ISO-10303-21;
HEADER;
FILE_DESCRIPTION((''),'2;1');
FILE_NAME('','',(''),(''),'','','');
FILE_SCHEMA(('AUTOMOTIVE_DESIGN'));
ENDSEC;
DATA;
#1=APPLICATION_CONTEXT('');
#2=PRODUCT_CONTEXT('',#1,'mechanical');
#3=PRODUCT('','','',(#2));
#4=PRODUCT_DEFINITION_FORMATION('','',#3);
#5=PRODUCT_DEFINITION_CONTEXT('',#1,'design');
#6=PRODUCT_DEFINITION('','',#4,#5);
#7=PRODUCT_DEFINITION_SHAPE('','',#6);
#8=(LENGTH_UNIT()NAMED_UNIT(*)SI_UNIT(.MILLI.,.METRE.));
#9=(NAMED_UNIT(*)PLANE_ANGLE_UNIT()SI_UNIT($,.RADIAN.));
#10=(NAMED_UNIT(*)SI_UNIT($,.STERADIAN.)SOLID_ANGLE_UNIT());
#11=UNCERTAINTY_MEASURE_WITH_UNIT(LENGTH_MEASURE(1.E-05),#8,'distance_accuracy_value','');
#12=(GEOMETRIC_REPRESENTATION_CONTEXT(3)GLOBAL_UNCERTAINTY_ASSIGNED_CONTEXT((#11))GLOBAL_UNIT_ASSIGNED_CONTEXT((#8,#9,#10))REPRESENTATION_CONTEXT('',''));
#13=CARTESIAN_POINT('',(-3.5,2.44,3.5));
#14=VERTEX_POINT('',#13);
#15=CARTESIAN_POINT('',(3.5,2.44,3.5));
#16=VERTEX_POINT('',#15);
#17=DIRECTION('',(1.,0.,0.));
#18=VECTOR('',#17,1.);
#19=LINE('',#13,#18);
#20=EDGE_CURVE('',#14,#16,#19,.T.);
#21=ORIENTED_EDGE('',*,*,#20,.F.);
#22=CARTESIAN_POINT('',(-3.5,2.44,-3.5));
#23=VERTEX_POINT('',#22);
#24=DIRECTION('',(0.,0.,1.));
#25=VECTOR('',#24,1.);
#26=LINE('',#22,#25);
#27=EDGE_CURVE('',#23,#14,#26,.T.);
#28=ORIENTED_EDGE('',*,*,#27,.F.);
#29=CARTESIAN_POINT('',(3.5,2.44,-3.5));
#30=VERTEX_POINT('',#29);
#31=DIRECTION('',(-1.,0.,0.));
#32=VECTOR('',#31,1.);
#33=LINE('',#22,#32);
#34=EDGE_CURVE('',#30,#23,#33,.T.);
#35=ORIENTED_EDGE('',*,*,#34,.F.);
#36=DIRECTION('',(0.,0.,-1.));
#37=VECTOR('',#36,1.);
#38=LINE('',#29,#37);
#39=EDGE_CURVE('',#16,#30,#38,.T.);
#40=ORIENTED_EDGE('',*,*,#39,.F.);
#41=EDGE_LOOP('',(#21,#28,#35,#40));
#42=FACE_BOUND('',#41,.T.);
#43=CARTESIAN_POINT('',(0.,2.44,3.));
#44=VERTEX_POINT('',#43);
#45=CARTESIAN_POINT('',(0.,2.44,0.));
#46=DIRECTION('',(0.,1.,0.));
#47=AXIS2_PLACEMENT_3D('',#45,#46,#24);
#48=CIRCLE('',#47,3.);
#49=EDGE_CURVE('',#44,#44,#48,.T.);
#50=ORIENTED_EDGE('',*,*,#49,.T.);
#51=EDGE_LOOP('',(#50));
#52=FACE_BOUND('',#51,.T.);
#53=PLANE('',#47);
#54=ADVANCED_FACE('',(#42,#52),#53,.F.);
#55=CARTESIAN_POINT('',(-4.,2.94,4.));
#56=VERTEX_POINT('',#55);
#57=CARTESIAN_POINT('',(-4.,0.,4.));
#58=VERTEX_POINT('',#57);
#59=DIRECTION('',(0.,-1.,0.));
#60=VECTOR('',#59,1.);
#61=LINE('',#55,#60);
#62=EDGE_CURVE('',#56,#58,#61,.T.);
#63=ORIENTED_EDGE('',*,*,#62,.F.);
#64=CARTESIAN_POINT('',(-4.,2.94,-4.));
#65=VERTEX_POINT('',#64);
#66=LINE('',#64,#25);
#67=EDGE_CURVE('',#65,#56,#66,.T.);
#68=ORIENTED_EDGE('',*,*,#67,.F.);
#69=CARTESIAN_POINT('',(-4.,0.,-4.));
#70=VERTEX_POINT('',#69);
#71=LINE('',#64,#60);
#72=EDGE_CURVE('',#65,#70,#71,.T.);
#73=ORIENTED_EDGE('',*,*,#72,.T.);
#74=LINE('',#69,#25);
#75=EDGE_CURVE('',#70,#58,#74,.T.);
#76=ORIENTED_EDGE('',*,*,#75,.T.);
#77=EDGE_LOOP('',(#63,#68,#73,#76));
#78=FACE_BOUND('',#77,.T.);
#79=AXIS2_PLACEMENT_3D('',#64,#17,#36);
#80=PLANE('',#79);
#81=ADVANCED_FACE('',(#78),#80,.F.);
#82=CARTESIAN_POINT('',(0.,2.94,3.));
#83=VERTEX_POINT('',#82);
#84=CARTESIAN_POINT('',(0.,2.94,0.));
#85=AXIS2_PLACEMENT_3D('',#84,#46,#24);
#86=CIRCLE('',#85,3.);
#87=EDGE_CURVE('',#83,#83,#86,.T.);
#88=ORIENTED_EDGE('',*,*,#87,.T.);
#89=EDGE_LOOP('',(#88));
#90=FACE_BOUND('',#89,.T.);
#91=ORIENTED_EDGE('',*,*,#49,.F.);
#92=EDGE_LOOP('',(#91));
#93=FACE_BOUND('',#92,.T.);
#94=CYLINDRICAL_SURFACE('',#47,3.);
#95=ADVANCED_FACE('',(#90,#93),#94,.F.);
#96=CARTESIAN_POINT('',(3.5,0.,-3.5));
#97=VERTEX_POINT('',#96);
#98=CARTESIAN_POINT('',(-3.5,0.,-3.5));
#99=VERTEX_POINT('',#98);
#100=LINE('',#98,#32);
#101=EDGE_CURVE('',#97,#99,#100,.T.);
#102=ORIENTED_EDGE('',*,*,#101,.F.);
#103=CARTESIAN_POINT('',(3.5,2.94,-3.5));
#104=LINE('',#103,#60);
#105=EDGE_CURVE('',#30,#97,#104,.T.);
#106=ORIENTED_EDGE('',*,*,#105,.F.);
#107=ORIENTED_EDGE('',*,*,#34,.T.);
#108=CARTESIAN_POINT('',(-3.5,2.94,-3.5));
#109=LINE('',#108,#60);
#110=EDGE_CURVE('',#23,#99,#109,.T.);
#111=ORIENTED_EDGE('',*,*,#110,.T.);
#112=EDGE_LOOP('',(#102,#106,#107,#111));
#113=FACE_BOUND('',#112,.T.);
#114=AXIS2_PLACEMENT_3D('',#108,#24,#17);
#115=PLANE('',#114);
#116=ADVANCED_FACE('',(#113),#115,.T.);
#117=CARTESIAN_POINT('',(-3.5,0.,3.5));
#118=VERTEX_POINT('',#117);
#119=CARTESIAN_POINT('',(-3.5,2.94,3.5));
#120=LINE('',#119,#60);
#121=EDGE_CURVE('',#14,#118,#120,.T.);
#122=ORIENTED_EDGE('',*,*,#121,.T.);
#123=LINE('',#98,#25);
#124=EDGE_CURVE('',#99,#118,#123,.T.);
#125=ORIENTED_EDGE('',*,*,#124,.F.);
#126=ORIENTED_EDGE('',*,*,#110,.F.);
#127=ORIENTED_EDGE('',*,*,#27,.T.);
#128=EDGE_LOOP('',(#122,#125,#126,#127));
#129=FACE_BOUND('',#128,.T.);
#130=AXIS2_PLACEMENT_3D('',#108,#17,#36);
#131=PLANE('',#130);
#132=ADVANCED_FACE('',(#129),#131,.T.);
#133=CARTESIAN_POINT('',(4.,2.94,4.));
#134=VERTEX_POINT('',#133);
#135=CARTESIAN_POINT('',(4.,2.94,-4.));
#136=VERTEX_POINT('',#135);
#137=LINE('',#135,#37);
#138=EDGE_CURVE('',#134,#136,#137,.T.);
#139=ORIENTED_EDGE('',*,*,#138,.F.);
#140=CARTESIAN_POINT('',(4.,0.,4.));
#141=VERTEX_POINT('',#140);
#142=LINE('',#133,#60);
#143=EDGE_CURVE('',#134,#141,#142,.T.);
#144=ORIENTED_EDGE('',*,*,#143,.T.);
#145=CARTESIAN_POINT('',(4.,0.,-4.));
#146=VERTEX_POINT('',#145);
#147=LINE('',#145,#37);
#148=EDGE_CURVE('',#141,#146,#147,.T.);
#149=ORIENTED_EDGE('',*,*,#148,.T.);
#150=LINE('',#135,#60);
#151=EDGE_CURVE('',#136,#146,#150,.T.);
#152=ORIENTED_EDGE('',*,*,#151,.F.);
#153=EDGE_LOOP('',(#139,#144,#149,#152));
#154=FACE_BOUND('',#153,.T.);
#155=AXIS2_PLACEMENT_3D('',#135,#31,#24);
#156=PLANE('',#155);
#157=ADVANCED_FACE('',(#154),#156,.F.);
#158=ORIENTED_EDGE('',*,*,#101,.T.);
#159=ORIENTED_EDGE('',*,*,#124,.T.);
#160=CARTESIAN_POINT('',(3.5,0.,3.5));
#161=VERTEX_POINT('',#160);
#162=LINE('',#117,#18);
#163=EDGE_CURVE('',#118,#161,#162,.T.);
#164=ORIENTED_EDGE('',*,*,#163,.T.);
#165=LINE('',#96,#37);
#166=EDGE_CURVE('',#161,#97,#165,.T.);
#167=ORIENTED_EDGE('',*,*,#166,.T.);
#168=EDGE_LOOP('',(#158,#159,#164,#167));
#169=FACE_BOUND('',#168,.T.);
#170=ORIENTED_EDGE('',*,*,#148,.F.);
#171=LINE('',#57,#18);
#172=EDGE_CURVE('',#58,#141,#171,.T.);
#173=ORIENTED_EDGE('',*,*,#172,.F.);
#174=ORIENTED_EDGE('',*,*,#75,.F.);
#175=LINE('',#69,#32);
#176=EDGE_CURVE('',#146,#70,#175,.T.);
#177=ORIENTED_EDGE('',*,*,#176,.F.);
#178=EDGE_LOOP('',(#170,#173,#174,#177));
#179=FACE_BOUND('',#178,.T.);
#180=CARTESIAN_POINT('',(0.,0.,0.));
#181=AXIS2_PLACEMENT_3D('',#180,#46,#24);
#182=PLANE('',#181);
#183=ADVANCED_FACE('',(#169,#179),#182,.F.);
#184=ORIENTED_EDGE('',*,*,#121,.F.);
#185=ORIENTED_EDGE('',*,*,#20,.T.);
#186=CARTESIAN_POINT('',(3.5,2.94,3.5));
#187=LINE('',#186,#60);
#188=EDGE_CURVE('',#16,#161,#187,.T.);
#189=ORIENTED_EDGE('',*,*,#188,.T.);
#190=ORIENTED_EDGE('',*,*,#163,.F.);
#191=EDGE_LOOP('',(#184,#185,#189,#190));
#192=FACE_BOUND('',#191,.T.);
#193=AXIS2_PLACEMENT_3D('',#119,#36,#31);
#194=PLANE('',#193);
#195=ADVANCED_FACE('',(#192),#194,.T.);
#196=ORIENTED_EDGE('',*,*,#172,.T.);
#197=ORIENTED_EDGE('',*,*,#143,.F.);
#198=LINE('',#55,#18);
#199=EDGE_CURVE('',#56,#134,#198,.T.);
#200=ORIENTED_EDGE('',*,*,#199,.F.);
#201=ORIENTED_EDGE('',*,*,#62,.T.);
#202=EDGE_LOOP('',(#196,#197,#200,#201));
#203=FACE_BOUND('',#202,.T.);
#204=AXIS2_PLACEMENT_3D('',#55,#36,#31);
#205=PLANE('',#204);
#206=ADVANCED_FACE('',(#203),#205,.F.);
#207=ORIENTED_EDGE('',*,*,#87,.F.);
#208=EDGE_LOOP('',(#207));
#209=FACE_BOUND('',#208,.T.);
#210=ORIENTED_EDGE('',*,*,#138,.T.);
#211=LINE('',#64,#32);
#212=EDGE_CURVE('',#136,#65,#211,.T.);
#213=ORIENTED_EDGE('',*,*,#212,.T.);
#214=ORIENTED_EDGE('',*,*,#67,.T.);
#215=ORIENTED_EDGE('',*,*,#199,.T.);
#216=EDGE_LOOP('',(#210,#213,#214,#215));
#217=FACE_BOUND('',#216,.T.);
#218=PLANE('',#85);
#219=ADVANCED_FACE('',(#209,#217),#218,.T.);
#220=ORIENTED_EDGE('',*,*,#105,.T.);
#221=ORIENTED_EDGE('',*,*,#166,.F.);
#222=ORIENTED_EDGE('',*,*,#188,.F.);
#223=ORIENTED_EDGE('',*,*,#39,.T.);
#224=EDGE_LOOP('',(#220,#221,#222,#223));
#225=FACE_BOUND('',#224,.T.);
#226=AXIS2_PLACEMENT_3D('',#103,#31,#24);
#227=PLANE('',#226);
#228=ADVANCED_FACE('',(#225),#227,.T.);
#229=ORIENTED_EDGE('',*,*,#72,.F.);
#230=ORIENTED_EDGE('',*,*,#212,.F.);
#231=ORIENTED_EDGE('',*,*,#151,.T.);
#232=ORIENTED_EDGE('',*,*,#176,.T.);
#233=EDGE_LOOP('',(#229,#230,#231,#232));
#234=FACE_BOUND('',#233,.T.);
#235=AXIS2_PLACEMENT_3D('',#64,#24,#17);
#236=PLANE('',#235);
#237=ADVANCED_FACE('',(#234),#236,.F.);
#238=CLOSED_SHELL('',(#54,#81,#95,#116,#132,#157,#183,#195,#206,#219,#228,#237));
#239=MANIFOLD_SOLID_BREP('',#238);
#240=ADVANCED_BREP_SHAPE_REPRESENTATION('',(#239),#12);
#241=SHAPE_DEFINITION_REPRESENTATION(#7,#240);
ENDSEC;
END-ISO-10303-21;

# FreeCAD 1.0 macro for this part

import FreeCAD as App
import Part
import Sketcher
Q = App.Units.Quantity

doc = App.newDocument("Part")
params = doc.addObject("Spreadsheet::Sheet", "Params")
for row, (alias, value) in enumerate([
    ("sketch1_width", "8 mm"),
    ("sketch1_width2", "7 mm"),
    ("pad1_length", "2.94 mm"),
    ("sketch2_diameter", "6 mm"),
    ("sketch2_width", "8 mm"),
    ("pad2_length", "0.5 mm"),
], start=1):
    params.set(f"A{row}", alias)
    params.set(f"B{row}", "=" + value)
    params.setAlias(f"B{row}", alias)

body = doc.addObject("PartDesign::Body", "Body")

# Sketch on XZ plane
sketch1 = body.newObject("Sketcher::SketchObject", "Sketch")
sketch1.AttachmentSupport = (doc.getObject("XZ_Plane"), [""])
sketch1.MapMode = "FlatFace"
sketch1.addGeometry(Part.LineSegment(App.Vector(-4, -4, 0), App.Vector(-4, 4, 0)), False)
sketch1.addGeometry(Part.LineSegment(App.Vector(-4, 4, 0), App.Vector(4, 4, 0)), False)
sketch1.addGeometry(Part.LineSegment(App.Vector(4, 4, 0), App.Vector(4, -4, 0)), False)
sketch1.addGeometry(Part.LineSegment(App.Vector(4, -4, 0), App.Vector(-4, -4, 0)), False)
sketch1.addGeometry(Part.LineSegment(App.Vector(4, 4, 0), App.Vector(-4, 4, 0)), False)
sketch1.addGeometry(Part.LineSegment(App.Vector(-4, 4, 0), App.Vector(-4, -4, 0)), False)
sketch1.addGeometry(Part.LineSegment(App.Vector(-4, -4, 0), App.Vector(4, -4, 0)), False)
sketch1.addGeometry(Part.LineSegment(App.Vector(4, -4, 0), App.Vector(4, 4, 0)), False)
sketch1.addConstraint(Sketcher.Constraint("Coincident", 0, 2, 1, 1))
sketch1.addConstraint(Sketcher.Constraint("Coincident", 1, 2, 2, 1))
sketch1.addConstraint(Sketcher.Constraint("Coincident", 2, 2, 3, 1))
sketch1.addConstraint(Sketcher.Constraint("Coincident", 3, 2, 0, 1))
sketch1.addConstraint(Sketcher.Constraint("Coincident", 4, 2, 5, 1))
sketch1.addConstraint(Sketcher.Constraint("Coincident", 5, 2, 6, 1))
sketch1.addConstraint(Sketcher.Constraint("Coincident", 6, 2, 7, 1))
sketch1.addConstraint(Sketcher.Constraint("Coincident", 7, 2, 4, 1))
sketch1.addConstraint(Sketcher.Constraint("Vertical", 0))
sketch1.addConstraint(Sketcher.Constraint("Horizontal", 1))
sketch1.addConstraint(Sketcher.Constraint("Vertical", 2))
sketch1.addConstraint(Sketcher.Constraint("Horizontal", 3))
sketch1.addConstraint(Sketcher.Constraint("Horizontal", 4))
sketch1.addConstraint(Sketcher.Constraint("Vertical", 5))
sketch1.addConstraint(Sketcher.Constraint("Horizontal", 6))
sketch1.addConstraint(Sketcher.Constraint("Vertical", 7))
sketch1.addConstraint(Sketcher.Constraint("Symmetric", 0, 2, 2, 2, -1, 1))
sketch1.addConstraint(Sketcher.Constraint("Symmetric", 4, 2, 6, 2, -1, 1))
sketch1.addConstraint(Sketcher.Constraint("Equal", 3, 0))
sketch1.addConstraint(Sketcher.Constraint("Equal", 6, 5))
sketch1.addConstraint(Sketcher.Constraint("DistanceX", 1, 1, 1, 2, Q("8 mm")))
sketch1.addConstraint(Sketcher.Constraint("DistanceX", 4, 2, 4, 1, Q("7 mm")))
sketch1.setExpression("Constraints[20]", "Params.sketch1_width")
sketch1.setExpression("Constraints[21]", "Params.sketch1_width2")
pad1 = body.newObject("PartDesign::Pad", "Pad")
pad1.Profile = sketch1
pad1.setExpression("Length", "Params.pad1_length")
pad1.Reversed = True

# Sketch on XZ plane
sketch2 = body.newObject("Sketcher::SketchObject", "Sketch001")
sketch2.AttachmentSupport = (doc.getObject("XZ_Plane"), [""])
sketch2.MapMode = "FlatFace"
sketch2.AttachmentOffset = App.Placement(App.Vector(0, 0, -2.94), App.Rotation())
sketch2.addGeometry(Part.LineSegment(App.Vector(-4, -4, 0), App.Vector(-4, 4, 0)), False)
sketch2.addGeometry(Part.LineSegment(App.Vector(-4, 4, 0), App.Vector(4, 4, 0)), False)
sketch2.addGeometry(Part.LineSegment(App.Vector(4, 4, 0), App.Vector(4, -4, 0)), False)
sketch2.addGeometry(Part.LineSegment(App.Vector(4, -4, 0), App.Vector(-4, -4, 0)), False)
sketch2.addGeometry(Part.Circle(App.Vector(0, 0, 0), App.Vector(0, 0, 1), 3), False)
sketch2.addConstraint(Sketcher.Constraint("Coincident", 0, 2, 1, 1))
sketch2.addConstraint(Sketcher.Constraint("Coincident", 1, 2, 2, 1))
sketch2.addConstraint(Sketcher.Constraint("Coincident", 2, 2, 3, 1))
sketch2.addConstraint(Sketcher.Constraint("Coincident", 3, 2, 0, 1))
sketch2.addConstraint(Sketcher.Constraint("Vertical", 0))
sketch2.addConstraint(Sketcher.Constraint("Horizontal", 1))
sketch2.addConstraint(Sketcher.Constraint("Vertical", 2))
sketch2.addConstraint(Sketcher.Constraint("Horizontal", 3))
sketch2.addConstraint(Sketcher.Constraint("Coincident", 4, 3, -1, 1))
sketch2.addConstraint(Sketcher.Constraint("Symmetric", 0, 2, 2, 2, -1, 1))
sketch2.addConstraint(Sketcher.Constraint("Equal", 3, 0))
sketch2.addConstraint(Sketcher.Constraint("Diameter", 4, Q("6 mm")))
sketch2.addConstraint(Sketcher.Constraint("DistanceX", 1, 1, 1, 2, Q("8 mm")))
sketch2.setExpression("Constraints[11]", "Params.sketch2_diameter")
sketch2.setExpression("Constraints[12]", "Params.sketch2_width")
pad2 = body.newObject("PartDesign::Pad", "Pad001")
pad2.Profile = sketch2
pad2.setExpression("Length", "Params.pad2_length")

doc.recompute()
